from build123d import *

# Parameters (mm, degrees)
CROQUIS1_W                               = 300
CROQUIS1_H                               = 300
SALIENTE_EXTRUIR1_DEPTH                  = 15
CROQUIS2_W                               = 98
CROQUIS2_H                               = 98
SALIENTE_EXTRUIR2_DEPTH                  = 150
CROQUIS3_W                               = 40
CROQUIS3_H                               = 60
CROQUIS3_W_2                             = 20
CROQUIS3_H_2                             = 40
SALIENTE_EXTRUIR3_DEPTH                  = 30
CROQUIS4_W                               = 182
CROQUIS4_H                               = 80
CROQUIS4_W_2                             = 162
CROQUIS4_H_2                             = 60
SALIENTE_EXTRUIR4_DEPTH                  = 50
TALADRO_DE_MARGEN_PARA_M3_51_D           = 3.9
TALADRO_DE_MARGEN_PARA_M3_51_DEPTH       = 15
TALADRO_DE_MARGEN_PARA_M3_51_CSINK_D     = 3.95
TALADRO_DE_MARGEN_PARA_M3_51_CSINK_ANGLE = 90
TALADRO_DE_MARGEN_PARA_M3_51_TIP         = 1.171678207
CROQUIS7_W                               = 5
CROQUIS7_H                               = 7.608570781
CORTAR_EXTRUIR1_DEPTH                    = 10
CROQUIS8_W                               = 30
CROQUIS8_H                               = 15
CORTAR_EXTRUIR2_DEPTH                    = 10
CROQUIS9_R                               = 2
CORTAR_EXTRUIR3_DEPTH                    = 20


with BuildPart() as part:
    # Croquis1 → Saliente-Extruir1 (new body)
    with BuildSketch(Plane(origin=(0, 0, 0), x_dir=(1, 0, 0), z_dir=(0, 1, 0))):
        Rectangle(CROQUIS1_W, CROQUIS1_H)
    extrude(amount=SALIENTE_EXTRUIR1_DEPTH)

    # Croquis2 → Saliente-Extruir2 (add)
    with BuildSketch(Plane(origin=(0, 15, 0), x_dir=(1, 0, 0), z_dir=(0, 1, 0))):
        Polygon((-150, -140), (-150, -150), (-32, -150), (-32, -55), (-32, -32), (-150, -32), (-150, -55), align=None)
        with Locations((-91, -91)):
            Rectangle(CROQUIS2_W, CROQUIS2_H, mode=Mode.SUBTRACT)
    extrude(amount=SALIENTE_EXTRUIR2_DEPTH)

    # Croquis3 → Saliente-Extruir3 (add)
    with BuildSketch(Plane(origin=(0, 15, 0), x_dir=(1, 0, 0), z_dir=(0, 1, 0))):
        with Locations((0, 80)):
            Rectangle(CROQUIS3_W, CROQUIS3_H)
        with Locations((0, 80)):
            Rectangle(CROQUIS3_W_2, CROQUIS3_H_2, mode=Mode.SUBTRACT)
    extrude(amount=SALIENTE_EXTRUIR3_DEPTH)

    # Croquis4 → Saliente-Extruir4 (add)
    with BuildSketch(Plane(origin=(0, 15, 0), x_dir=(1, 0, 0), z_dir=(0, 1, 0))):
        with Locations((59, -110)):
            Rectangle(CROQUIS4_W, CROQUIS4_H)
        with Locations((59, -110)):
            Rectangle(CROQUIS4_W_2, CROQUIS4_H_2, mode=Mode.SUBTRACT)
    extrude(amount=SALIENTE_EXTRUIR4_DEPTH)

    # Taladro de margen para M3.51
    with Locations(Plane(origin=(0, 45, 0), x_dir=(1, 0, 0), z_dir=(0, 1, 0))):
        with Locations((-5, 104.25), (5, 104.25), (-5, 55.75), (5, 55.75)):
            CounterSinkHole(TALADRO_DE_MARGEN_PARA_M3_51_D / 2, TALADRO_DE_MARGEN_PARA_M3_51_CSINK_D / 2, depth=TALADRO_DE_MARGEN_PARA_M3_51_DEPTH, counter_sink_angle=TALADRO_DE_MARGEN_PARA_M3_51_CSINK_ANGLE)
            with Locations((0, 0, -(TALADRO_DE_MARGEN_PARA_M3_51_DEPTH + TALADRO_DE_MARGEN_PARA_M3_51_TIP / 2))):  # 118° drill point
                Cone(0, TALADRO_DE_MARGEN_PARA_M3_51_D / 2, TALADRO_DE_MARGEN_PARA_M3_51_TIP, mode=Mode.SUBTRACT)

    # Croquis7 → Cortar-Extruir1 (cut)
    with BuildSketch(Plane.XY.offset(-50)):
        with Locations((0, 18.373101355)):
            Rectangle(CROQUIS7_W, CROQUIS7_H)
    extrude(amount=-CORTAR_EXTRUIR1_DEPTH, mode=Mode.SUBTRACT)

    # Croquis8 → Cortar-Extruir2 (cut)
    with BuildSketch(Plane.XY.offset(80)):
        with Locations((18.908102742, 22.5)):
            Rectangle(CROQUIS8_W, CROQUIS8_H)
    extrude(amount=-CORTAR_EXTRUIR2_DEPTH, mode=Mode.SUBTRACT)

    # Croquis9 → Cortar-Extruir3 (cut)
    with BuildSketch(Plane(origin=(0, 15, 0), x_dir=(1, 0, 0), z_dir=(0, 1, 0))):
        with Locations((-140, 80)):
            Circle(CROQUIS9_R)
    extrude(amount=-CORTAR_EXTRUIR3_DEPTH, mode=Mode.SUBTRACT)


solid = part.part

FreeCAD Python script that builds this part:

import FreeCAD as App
import Part
import Sketcher

V = App.Vector
Q = App.Units.Quantity

doc = App.newDocument("Part")
params = doc.addObject("Spreadsheet::Sheet", "Params")
for row, (alias, value) in enumerate([
    ("sketch1_width", "300 mm"),
    ("pad1_length", "15 mm"),
    ("sketch2_width", "118 mm"),
    ("sketch2_width2", "98 mm"),
    ("pad2_length", "150 mm"),
    ("sketch3_width", "40 mm"),
    ("sketch3_width2", "20 mm"),
    ("sketch3_height", "60 mm"),
    ("pad3_length", "30 mm"),
    ("sketch4_width", "182 mm"),
    ("sketch4_width2", "162 mm"),
    ("sketch4_height", "80 mm"),
    ("sketch4_height2", "60 mm"),
    ("pad4_length", "50 mm"),
    ("sketch5_diameter", "3.9 mm"),
    ("hole_diameter", "3.9 mm"),
    ("hole_depth", "15 mm"),
    ("hole_csink_diameter", "3.95 mm"),
    ("sketch6_width", "5 mm"),
    ("pocket1_length", "10 mm"),
    ("sketch7_width", "30 mm"),
    ("sketch7_height", "15 mm"),
    ("pocket2_length", "10 mm"),
    ("sketch8_diameter", "4 mm"),
    ("pocket3_length", "20 mm"),
], start=1):
    params.set(f"A{row}", alias)
    params.set(f"B{row}", "=" + value)
    params.setAlias(f"B{row}", alias)

body = doc.addObject("PartDesign::Body", "Body")

sketch1 = body.newObject("Sketcher::SketchObject", "Sketch")
sketch1.AttachmentSupport = (doc.getObject("XZ_Plane"), [""])
sketch1.MapMode = "FlatFace"
sketch1.addGeometry(Part.LineSegment(V(-150, -150, 0), V(-150, 150, 0)), False)
sketch1.addGeometry(Part.LineSegment(V(-150, 150, 0), V(150, 150, 0)), False)
sketch1.addGeometry(Part.LineSegment(V(150, 150, 0), V(150, -150, 0)), False)
sketch1.addGeometry(Part.LineSegment(V(150, -150, 0), V(-150, -150, 0)), False)
sketch1.addConstraint(Sketcher.Constraint("Coincident", 0, 2, 1, 1))
sketch1.addConstraint(Sketcher.Constraint("Coincident", 1, 2, 2, 1))
sketch1.addConstraint(Sketcher.Constraint("Coincident", 2, 2, 3, 1))
sketch1.addConstraint(Sketcher.Constraint("Coincident", 3, 2, 0, 1))
sketch1.addConstraint(Sketcher.Constraint("Vertical", 0))
sketch1.addConstraint(Sketcher.Constraint("Horizontal", 1))
sketch1.addConstraint(Sketcher.Constraint("Vertical", 2))
sketch1.addConstraint(Sketcher.Constraint("Horizontal", 3))
sketch1.addConstraint(Sketcher.Constraint("Symmetric", 0, 2, 2, 2, -1, 1))
sketch1.addConstraint(Sketcher.Constraint("Equal", 3, 0))
sketch1.addConstraint(Sketcher.Constraint("DistanceX", 1, 1, 1, 2, Q("300 mm")))
sketch1.setExpression("Constraints[10]", "Params.sketch1_width")
pad1 = body.newObject("PartDesign::Pad", "Pad")
pad1.Profile = sketch1
pad1.setExpression("Length", "Params.pad1_length")
pad1.Reversed = True

sketch2 = body.newObject("Sketcher::SketchObject", "Sketch001")
sketch2.AttachmentSupport = (doc.getObject("XZ_Plane"), [""])
sketch2.MapMode = "FlatFace"
sketch2.AttachmentOffset = App.Placement(V(0, 0, -15), App.Rotation())
sketch2.addGeometry(Part.LineSegment(V(-150, 150, 0), V(-32, 150, 0)), False)
sketch2.addGeometry(Part.LineSegment(V(-32, 150, 0), V(-32, 32, 0)), False)
sketch2.addGeometry(Part.LineSegment(V(-32, 32, 0), V(-150, 32, 0)), False)
sketch2.addGeometry(Part.LineSegment(V(-150, 32, 0), V(-150, 150, 0)), False)
sketch2.addGeometry(Part.LineSegment(V(-42, 140, 0), V(-140, 140, 0)), False)
sketch2.addGeometry(Part.LineSegment(V(-140, 140, 0), V(-140, 42, 0)), False)
sketch2.addGeometry(Part.LineSegment(V(-140, 42, 0), V(-42, 42, 0)), False)
sketch2.addGeometry(Part.LineSegment(V(-42, 42, 0), V(-42, 140, 0)), False)
sketch2.addConstraint(Sketcher.Constraint("Coincident", 0, 2, 1, 1))
sketch2.addConstraint(Sketcher.Constraint("Coincident", 1, 2, 2, 1))
sketch2.addConstraint(Sketcher.Constraint("Coincident", 2, 2, 3, 1))
sketch2.addConstraint(Sketcher.Constraint("Coincident", 3, 2, 0, 1))
sketch2.addConstraint(Sketcher.Constraint("Coincident", 4, 2, 5, 1))
sketch2.addConstraint(Sketcher.Constraint("Coincident", 5, 2, 6, 1))
sketch2.addConstraint(Sketcher.Constraint("Coincident", 6, 2, 7, 1))
sketch2.addConstraint(Sketcher.Constraint("Coincident", 7, 2, 4, 1))
sketch2.addConstraint(Sketcher.Constraint("Horizontal", 0))
sketch2.addConstraint(Sketcher.Constraint("Vertical", 1))
sketch2.addConstraint(Sketcher.Constraint("Horizontal", 2))
sketch2.addConstraint(Sketcher.Constraint("Vertical", 3))
sketch2.addConstraint(Sketcher.Constraint("Horizontal", 4))
sketch2.addConstraint(Sketcher.Constraint("Vertical", 5))
sketch2.addConstraint(Sketcher.Constraint("Horizontal", 6))
sketch2.addConstraint(Sketcher.Constraint("Vertical", 7))
sketch2.addConstraint(Sketcher.Constraint("Equal", 2, 1))
sketch2.addConstraint(Sketcher.Constraint("Equal", 6, 5))
sketch2.addConstraint(Sketcher.Constraint("DistanceX", 0, 1, 0, 2, Q("118 mm")))
sketch2.addConstraint(Sketcher.Constraint("DistanceX", 4, 2, 4, 1, Q("98 mm")))
sketch2.addConstraint(Sketcher.Constraint("DistanceX", 0, 2, -1, 1, Q("32 mm")))
sketch2.addConstraint(Sketcher.Constraint("DistanceY", -1, 1, 0, 2, Q("150 mm")))
sketch2.addConstraint(Sketcher.Constraint("DistanceX", 4, 2, -1, 1, Q("140 mm")))
sketch2.addConstraint(Sketcher.Constraint("DistanceY", -1, 1, 4, 2, Q("140 mm")))
sketch2.setExpression("Constraints[18]", "Params.sketch2_width")
sketch2.setExpression("Constraints[19]", "Params.sketch2_width2")
pad2 = body.newObject("PartDesign::Pad", "Pad001")
pad2.Profile = sketch2
pad2.setExpression("Length", "Params.pad2_length")
pad2.Reversed = True

sketch3 = body.newObject("Sketcher::SketchObject", "Sketch002")
sketch3.AttachmentSupport = (doc.getObject("XZ_Plane"), [""])
sketch3.MapMode = "FlatFace"
sketch3.AttachmentOffset = App.Placement(V(0, 0, -15), App.Rotation())
sketch3.addGeometry(Part.LineSegment(V(-20, -110, 0), V(-20, -50, 0)), False)
sketch3.addGeometry(Part.LineSegment(V(-20, -50, 0), V(20, -50, 0)), False)
sketch3.addGeometry(Part.LineSegment(V(20, -50, 0), V(20, -110, 0)), False)
sketch3.addGeometry(Part.LineSegment(V(20, -110, 0), V(-20, -110, 0)), False)
sketch3.addGeometry(Part.LineSegment(V(10, -60, 0), V(-10, -60, 0)), False)
sketch3.addGeometry(Part.LineSegment(V(-10, -60, 0), V(-10, -100, 0)), False)
sketch3.addGeometry(Part.LineSegment(V(-10, -100, 0), V(10, -100, 0)), False)
sketch3.addGeometry(Part.LineSegment(V(10, -100, 0), V(10, -60, 0)), False)
sketch3.addConstraint(Sketcher.Constraint("Coincident", 0, 2, 1, 1))
sketch3.addConstraint(Sketcher.Constraint("Coincident", 1, 2, 2, 1))
sketch3.addConstraint(Sketcher.Constraint("Coincident", 2, 2, 3, 1))
sketch3.addConstraint(Sketcher.Constraint("Coincident", 3, 2, 0, 1))
sketch3.addConstraint(Sketcher.Constraint("Coincident", 4, 2, 5, 1))
sketch3.addConstraint(Sketcher.Constraint("Coincident", 5, 2, 6, 1))
sketch3.addConstraint(Sketcher.Constraint("Coincident", 6, 2, 7, 1))
sketch3.addConstraint(Sketcher.Constraint("Coincident", 7, 2, 4, 1))
sketch3.addConstraint(Sketcher.Constraint("Vertical", 0))
sketch3.addConstraint(Sketcher.Constraint("Horizontal", 1))
sketch3.addConstraint(Sketcher.Constraint("Vertical", 2))
sketch3.addConstraint(Sketcher.Constraint("Horizontal", 3))
sketch3.addConstraint(Sketcher.Constraint("Horizontal", 4))
sketch3.addConstraint(Sketcher.Constraint("Vertical", 5))
sketch3.addConstraint(Sketcher.Constraint("Horizontal", 6))
sketch3.addConstraint(Sketcher.Constraint("Vertical", 7))
sketch3.addConstraint(Sketcher.Constraint("Equal", 3, 5))
sketch3.addConstraint(Sketcher.Constraint("DistanceX", 1, 1, 1, 2, Q("40 mm")))
sketch3.addConstraint(Sketcher.Constraint("DistanceX", 4, 2, 4, 1, Q("20 mm")))
sketch3.addConstraint(Sketcher.Constraint("DistanceY", 0, 1, 0, 2, Q("60 mm")))
sketch3.addConstraint(Sketcher.Constraint("DistanceX", 0, 2, -1, 1, Q("20 mm")))
sketch3.addConstraint(Sketcher.Constraint("DistanceY", 0, 2, -1, 1, Q("50 mm")))
sketch3.addConstraint(Sketcher.Constraint("DistanceX", 4, 2, -1, 1, Q("10 mm")))
sketch3.addConstraint(Sketcher.Constraint("DistanceY", 4, 2, -1, 1, Q("60 mm")))
sketch3.setExpression("Constraints[17]", "Params.sketch3_width")
sketch3.setExpression("Constraints[18]", "Params.sketch3_width2")
sketch3.setExpression("Constraints[19]", "Params.sketch3_height")
pad3 = body.newObject("PartDesign::Pad", "Pad002")
pad3.Profile = sketch3
pad3.setExpression("Length", "Params.pad3_length")
pad3.Reversed = True

sketch4 = body.newObject("Sketcher::SketchObject", "Sketch003")
sketch4.AttachmentSupport = (doc.getObject("XZ_Plane"), [""])
sketch4.MapMode = "FlatFace"
sketch4.AttachmentOffset = App.Placement(V(0, 0, -15), App.Rotation())
sketch4.addGeometry(Part.LineSegment(V(-32, 70, 0), V(-32, 150, 0)), False)
sketch4.addGeometry(Part.LineSegment(V(-32, 150, 0), V(150, 150, 0)), False)
sketch4.addGeometry(Part.LineSegment(V(150, 150, 0), V(150, 70, 0)), False)
sketch4.addGeometry(Part.LineSegment(V(150, 70, 0), V(-32, 70, 0)), False)
sketch4.addGeometry(Part.LineSegment(V(140, 140, 0), V(-22, 140, 0)), False)
sketch4.addGeometry(Part.LineSegment(V(-22, 140, 0), V(-22, 80, 0)), False)
sketch4.addGeometry(Part.LineSegment(V(-22, 80, 0), V(140, 80, 0)), False)
sketch4.addGeometry(Part.LineSegment(V(140, 80, 0), V(140, 140, 0)), False)
sketch4.addConstraint(Sketcher.Constraint("Coincident", 0, 2, 1, 1))
sketch4.addConstraint(Sketcher.Constraint("Coincident", 1, 2, 2, 1))
sketch4.addConstraint(Sketcher.Constraint("Coincident", 2, 2, 3, 1))
sketch4.addConstraint(Sketcher.Constraint("Coincident", 3, 2, 0, 1))
sketch4.addConstraint(Sketcher.Constraint("Coincident", 4, 2, 5, 1))
sketch4.addConstraint(Sketcher.Constraint("Coincident", 5, 2, 6, 1))
sketch4.addConstraint(Sketcher.Constraint("Coincident", 6, 2, 7, 1))
sketch4.addConstraint(Sketcher.Constraint("Coincident", 7, 2, 4, 1))
sketch4.addConstraint(Sketcher.Constraint("Vertical", 0))
sketch4.addConstraint(Sketcher.Constraint("Horizontal", 1))
sketch4.addConstraint(Sketcher.Constraint("Vertical", 2))
sketch4.addConstraint(Sketcher.Constraint("Horizontal", 3))
sketch4.addConstraint(Sketcher.Constraint("Horizontal", 4))
sketch4.addConstraint(Sketcher.Constraint("Vertical", 5))
sketch4.addConstraint(Sketcher.Constraint("Horizontal", 6))
sketch4.addConstraint(Sketcher.Constraint("Vertical", 7))
sketch4.addConstraint(Sketcher.Constraint("DistanceX", 1, 1, 1, 2, Q("182 mm")))
sketch4.addConstraint(Sketcher.Constraint("DistanceX", 4, 2, 4, 1, Q("162 mm")))
sketch4.addConstraint(Sketcher.Constraint("DistanceY", 0, 1, 0, 2, Q("80 mm")))
sketch4.addConstraint(Sketcher.Constraint("DistanceY", 5, 2, 5, 1, Q("60 mm")))
sketch4.addConstraint(Sketcher.Constraint("DistanceX", 0, 2, -1, 1, Q("32 mm")))
sketch4.addConstraint(Sketcher.Constraint("DistanceY", -1, 1, 0, 2, Q("150 mm")))
sketch4.addConstraint(Sketcher.Constraint("DistanceX", 4, 2, -1, 1, Q("22 mm")))
sketch4.addConstraint(Sketcher.Constraint("DistanceY", -1, 1, 4, 2, Q("140 mm")))
sketch4.setExpression("Constraints[16]", "Params.sketch4_width")
sketch4.setExpression("Constraints[17]", "Params.sketch4_width2")
sketch4.setExpression("Constraints[18]", "Params.sketch4_height")
sketch4.setExpression("Constraints[19]", "Params.sketch4_height2")
pad4 = body.newObject("PartDesign::Pad", "Pad003")
pad4.Profile = sketch4
pad4.setExpression("Length", "Params.pad4_length")
pad4.Reversed = True

sketch5 = body.newObject("Sketcher::SketchObject", "Sketch004")
sketch5.AttachmentSupport = (doc.getObject("XZ_Plane"), [""])
sketch5.MapMode = "FlatFace"
sketch5.AttachmentOffset = App.Placement(V(0, 0, -45), App.Rotation())
sketch5.addGeometry(Part.Circle(V(-5, -104.2, 0), V(0, 0, 1), 1.9), False)
sketch5.addGeometry(Part.Circle(V(5, -104.2, 0), V(0, 0, 1), 1.9), False)
sketch5.addGeometry(Part.Circle(V(-5, -55.8, 0), V(0, 0, 1), 1.9), False)
sketch5.addGeometry(Part.Circle(V(5, -55.8, 0), V(0, 0, 1), 1.9), False)
sketch5.addConstraint(Sketcher.Constraint("Equal", 0, 1))
sketch5.addConstraint(Sketcher.Constraint("Equal", 1, 2))
sketch5.addConstraint(Sketcher.Constraint("Equal", 2, 3))
sketch5.addConstraint(Sketcher.Constraint("Symmetric", 0, 3, 1, 3, -2))
sketch5.addConstraint(Sketcher.Constraint("Symmetric", 2, 3, 3, 3, -2))
sketch5.addConstraint(Sketcher.Constraint("Vertical", 0, 3, 2, 3))
sketch5.addConstraint(Sketcher.Constraint("Diameter", 0, Q("3.9 mm")))
sketch5.addConstraint(Sketcher.Constraint("DistanceX", 0, 3, -1, 1, Q("5 mm")))
sketch5.addConstraint(Sketcher.Constraint("DistanceY", 0, 3, 2, 3, Q("48.5 mm")))
sketch5.addConstraint(Sketcher.Constraint("DistanceY", 0, 3, -1, 1, Q("104.25 mm")))
sketch5.setExpression("Constraints[6]", "Params.sketch5_diameter")
doc.recompute()
hole = body.newObject("PartDesign::Hole", "Hole")
hole.Profile = sketch5
hole.ThreadType = "None"
hole.setExpression("Diameter", "Params.hole_diameter")
hole.DepthType = "Dimension"
hole.setExpression("Depth", "Params.hole_depth")
hole.DrillPoint = "Angled"
hole.DrillPointAngle = 118
hole.HoleCutType = "Countersink"
hole.setExpression("HoleCutDiameter", "Params.hole_csink_diameter")
hole.HoleCutCountersinkAngle = 90
hole.Reversed = True

sketch6 = body.newObject("Sketcher::SketchObject", "Sketch005")
sketch6.AttachmentSupport = (doc.getObject("XY_Plane"), [""])
sketch6.MapMode = "FlatFace"
sketch6.AttachmentOffset = App.Placement(V(0, 0, -50), App.Rotation())
sketch6.addGeometry(Part.LineSegment(V(-2, 22, 0), V(-2, 15, 0)), False)
sketch6.addGeometry(Part.LineSegment(V(-2, 15, 0), V(2, 15, 0)), False)
sketch6.addGeometry(Part.LineSegment(V(2, 15, 0), V(2, 22, 0)), False)
sketch6.addGeometry(Part.LineSegment(V(2, 22, 0), V(-2, 22, 0)), False)
sketch6.addConstraint(Sketcher.Constraint("Coincident", 0, 2, 1, 1))
sketch6.addConstraint(Sketcher.Constraint("Coincident", 1, 2, 2, 1))
sketch6.addConstraint(Sketcher.Constraint("Coincident", 2, 2, 3, 1))
sketch6.addConstraint(Sketcher.Constraint("Coincident", 3, 2, 0, 1))
sketch6.addConstraint(Sketcher.Constraint("Vertical", 0))
sketch6.addConstraint(Sketcher.Constraint("Horizontal", 1))
sketch6.addConstraint(Sketcher.Constraint("Vertical", 2))
sketch6.addConstraint(Sketcher.Constraint("Horizontal", 3))
sketch6.addConstraint(Sketcher.Constraint("DistanceX", 1, 1, 1, 2, Q("5 mm")))
sketch6.addConstraint(Sketcher.Constraint("DistanceX", 0, 2, -1, 1, Q("2.5 mm")))
sketch6.addConstraint(Sketcher.Constraint("DistanceY", 0, 2, 0, 1, Q("7.608571 mm")))
sketch6.addConstraint(Sketcher.Constraint("DistanceY", -1, 1, 0, 2, Q("14.568816 mm")))
sketch6.setExpression("Constraints[8]", "Params.sketch6_width")
pocket1 = body.newObject("PartDesign::Pocket", "Pocket")
pocket1.Profile = sketch6
pocket1.setExpression("Length", "Params.pocket1_length")

sketch7 = body.newObject("Sketcher::SketchObject", "Sketch006")
sketch7.AttachmentSupport = (doc.getObject("XY_Plane"), [""])
sketch7.MapMode = "FlatFace"
sketch7.AttachmentOffset = App.Placement(V(0, 0, 80), App.Rotation())
sketch7.addGeometry(Part.LineSegment(V(4, 30, 0), V(4, 15, 0)), False)
sketch7.addGeometry(Part.LineSegment(V(4, 15, 0), V(34, 15, 0)), False)
sketch7.addGeometry(Part.LineSegment(V(34, 15, 0), V(34, 30, 0)), False)
sketch7.addGeometry(Part.LineSegment(V(34, 30, 0), V(4, 30, 0)), False)
sketch7.addConstraint(Sketcher.Constraint("Coincident", 0, 2, 1, 1))
sketch7.addConstraint(Sketcher.Constraint("Coincident", 1, 2, 2, 1))
sketch7.addConstraint(Sketcher.Constraint("Coincident", 2, 2, 3, 1))
sketch7.addConstraint(Sketcher.Constraint("Coincident", 3, 2, 0, 1))
sketch7.addConstraint(Sketcher.Constraint("Vertical", 0))
sketch7.addConstraint(Sketcher.Constraint("Horizontal", 1))
sketch7.addConstraint(Sketcher.Constraint("Vertical", 2))
sketch7.addConstraint(Sketcher.Constraint("Horizontal", 3))
sketch7.addConstraint(Sketcher.Constraint("DistanceX", 1, 1, 1, 2, Q("30 mm")))
sketch7.addConstraint(Sketcher.Constraint("DistanceY", 0, 2, 0, 1, Q("15 mm")))
sketch7.addConstraint(Sketcher.Constraint("DistanceY", -1, 1, 0, 2, Q("15 mm")))
sketch7.addConstraint(Sketcher.Constraint("DistanceX", -1, 1, 0, 2, Q("3.908103 mm")))
sketch7.setExpression("Constraints[8]", "Params.sketch7_width")
sketch7.setExpression("Constraints[9]", "Params.sketch7_height")
pocket2 = body.newObject("PartDesign::Pocket", "Pocket001")
pocket2.Profile = sketch7
pocket2.setExpression("Length", "Params.pocket2_length")

sketch8 = body.newObject("Sketcher::SketchObject", "Sketch007")
sketch8.AttachmentSupport = (doc.getObject("XZ_Plane"), [""])
sketch8.MapMode = "FlatFace"
sketch8.AttachmentOffset = App.Placement(V(0, 0, -15), App.Rotation())
sketch8.addGeometry(Part.Circle(V(-140, -80, 0), V(0, 0, 1), 2), False)
sketch8.addConstraint(Sketcher.Constraint("Diameter", 0, Q("4 mm")))
sketch8.addConstraint(Sketcher.Constraint("DistanceX", 0, 3, -1, 1, Q("140 mm")))
sketch8.addConstraint(Sketcher.Constraint("DistanceY", 0, 3, -1, 1, Q("80 mm")))
sketch8.setExpression("Constraints[0]", "Params.sketch8_diameter")
pocket3 = body.newObject("PartDesign::Pocket", "Pocket002")
pocket3.Profile = sketch8
pocket3.setExpression("Length", "Params.pocket3_length")
pocket3.Reversed = True

doc.recompute()
